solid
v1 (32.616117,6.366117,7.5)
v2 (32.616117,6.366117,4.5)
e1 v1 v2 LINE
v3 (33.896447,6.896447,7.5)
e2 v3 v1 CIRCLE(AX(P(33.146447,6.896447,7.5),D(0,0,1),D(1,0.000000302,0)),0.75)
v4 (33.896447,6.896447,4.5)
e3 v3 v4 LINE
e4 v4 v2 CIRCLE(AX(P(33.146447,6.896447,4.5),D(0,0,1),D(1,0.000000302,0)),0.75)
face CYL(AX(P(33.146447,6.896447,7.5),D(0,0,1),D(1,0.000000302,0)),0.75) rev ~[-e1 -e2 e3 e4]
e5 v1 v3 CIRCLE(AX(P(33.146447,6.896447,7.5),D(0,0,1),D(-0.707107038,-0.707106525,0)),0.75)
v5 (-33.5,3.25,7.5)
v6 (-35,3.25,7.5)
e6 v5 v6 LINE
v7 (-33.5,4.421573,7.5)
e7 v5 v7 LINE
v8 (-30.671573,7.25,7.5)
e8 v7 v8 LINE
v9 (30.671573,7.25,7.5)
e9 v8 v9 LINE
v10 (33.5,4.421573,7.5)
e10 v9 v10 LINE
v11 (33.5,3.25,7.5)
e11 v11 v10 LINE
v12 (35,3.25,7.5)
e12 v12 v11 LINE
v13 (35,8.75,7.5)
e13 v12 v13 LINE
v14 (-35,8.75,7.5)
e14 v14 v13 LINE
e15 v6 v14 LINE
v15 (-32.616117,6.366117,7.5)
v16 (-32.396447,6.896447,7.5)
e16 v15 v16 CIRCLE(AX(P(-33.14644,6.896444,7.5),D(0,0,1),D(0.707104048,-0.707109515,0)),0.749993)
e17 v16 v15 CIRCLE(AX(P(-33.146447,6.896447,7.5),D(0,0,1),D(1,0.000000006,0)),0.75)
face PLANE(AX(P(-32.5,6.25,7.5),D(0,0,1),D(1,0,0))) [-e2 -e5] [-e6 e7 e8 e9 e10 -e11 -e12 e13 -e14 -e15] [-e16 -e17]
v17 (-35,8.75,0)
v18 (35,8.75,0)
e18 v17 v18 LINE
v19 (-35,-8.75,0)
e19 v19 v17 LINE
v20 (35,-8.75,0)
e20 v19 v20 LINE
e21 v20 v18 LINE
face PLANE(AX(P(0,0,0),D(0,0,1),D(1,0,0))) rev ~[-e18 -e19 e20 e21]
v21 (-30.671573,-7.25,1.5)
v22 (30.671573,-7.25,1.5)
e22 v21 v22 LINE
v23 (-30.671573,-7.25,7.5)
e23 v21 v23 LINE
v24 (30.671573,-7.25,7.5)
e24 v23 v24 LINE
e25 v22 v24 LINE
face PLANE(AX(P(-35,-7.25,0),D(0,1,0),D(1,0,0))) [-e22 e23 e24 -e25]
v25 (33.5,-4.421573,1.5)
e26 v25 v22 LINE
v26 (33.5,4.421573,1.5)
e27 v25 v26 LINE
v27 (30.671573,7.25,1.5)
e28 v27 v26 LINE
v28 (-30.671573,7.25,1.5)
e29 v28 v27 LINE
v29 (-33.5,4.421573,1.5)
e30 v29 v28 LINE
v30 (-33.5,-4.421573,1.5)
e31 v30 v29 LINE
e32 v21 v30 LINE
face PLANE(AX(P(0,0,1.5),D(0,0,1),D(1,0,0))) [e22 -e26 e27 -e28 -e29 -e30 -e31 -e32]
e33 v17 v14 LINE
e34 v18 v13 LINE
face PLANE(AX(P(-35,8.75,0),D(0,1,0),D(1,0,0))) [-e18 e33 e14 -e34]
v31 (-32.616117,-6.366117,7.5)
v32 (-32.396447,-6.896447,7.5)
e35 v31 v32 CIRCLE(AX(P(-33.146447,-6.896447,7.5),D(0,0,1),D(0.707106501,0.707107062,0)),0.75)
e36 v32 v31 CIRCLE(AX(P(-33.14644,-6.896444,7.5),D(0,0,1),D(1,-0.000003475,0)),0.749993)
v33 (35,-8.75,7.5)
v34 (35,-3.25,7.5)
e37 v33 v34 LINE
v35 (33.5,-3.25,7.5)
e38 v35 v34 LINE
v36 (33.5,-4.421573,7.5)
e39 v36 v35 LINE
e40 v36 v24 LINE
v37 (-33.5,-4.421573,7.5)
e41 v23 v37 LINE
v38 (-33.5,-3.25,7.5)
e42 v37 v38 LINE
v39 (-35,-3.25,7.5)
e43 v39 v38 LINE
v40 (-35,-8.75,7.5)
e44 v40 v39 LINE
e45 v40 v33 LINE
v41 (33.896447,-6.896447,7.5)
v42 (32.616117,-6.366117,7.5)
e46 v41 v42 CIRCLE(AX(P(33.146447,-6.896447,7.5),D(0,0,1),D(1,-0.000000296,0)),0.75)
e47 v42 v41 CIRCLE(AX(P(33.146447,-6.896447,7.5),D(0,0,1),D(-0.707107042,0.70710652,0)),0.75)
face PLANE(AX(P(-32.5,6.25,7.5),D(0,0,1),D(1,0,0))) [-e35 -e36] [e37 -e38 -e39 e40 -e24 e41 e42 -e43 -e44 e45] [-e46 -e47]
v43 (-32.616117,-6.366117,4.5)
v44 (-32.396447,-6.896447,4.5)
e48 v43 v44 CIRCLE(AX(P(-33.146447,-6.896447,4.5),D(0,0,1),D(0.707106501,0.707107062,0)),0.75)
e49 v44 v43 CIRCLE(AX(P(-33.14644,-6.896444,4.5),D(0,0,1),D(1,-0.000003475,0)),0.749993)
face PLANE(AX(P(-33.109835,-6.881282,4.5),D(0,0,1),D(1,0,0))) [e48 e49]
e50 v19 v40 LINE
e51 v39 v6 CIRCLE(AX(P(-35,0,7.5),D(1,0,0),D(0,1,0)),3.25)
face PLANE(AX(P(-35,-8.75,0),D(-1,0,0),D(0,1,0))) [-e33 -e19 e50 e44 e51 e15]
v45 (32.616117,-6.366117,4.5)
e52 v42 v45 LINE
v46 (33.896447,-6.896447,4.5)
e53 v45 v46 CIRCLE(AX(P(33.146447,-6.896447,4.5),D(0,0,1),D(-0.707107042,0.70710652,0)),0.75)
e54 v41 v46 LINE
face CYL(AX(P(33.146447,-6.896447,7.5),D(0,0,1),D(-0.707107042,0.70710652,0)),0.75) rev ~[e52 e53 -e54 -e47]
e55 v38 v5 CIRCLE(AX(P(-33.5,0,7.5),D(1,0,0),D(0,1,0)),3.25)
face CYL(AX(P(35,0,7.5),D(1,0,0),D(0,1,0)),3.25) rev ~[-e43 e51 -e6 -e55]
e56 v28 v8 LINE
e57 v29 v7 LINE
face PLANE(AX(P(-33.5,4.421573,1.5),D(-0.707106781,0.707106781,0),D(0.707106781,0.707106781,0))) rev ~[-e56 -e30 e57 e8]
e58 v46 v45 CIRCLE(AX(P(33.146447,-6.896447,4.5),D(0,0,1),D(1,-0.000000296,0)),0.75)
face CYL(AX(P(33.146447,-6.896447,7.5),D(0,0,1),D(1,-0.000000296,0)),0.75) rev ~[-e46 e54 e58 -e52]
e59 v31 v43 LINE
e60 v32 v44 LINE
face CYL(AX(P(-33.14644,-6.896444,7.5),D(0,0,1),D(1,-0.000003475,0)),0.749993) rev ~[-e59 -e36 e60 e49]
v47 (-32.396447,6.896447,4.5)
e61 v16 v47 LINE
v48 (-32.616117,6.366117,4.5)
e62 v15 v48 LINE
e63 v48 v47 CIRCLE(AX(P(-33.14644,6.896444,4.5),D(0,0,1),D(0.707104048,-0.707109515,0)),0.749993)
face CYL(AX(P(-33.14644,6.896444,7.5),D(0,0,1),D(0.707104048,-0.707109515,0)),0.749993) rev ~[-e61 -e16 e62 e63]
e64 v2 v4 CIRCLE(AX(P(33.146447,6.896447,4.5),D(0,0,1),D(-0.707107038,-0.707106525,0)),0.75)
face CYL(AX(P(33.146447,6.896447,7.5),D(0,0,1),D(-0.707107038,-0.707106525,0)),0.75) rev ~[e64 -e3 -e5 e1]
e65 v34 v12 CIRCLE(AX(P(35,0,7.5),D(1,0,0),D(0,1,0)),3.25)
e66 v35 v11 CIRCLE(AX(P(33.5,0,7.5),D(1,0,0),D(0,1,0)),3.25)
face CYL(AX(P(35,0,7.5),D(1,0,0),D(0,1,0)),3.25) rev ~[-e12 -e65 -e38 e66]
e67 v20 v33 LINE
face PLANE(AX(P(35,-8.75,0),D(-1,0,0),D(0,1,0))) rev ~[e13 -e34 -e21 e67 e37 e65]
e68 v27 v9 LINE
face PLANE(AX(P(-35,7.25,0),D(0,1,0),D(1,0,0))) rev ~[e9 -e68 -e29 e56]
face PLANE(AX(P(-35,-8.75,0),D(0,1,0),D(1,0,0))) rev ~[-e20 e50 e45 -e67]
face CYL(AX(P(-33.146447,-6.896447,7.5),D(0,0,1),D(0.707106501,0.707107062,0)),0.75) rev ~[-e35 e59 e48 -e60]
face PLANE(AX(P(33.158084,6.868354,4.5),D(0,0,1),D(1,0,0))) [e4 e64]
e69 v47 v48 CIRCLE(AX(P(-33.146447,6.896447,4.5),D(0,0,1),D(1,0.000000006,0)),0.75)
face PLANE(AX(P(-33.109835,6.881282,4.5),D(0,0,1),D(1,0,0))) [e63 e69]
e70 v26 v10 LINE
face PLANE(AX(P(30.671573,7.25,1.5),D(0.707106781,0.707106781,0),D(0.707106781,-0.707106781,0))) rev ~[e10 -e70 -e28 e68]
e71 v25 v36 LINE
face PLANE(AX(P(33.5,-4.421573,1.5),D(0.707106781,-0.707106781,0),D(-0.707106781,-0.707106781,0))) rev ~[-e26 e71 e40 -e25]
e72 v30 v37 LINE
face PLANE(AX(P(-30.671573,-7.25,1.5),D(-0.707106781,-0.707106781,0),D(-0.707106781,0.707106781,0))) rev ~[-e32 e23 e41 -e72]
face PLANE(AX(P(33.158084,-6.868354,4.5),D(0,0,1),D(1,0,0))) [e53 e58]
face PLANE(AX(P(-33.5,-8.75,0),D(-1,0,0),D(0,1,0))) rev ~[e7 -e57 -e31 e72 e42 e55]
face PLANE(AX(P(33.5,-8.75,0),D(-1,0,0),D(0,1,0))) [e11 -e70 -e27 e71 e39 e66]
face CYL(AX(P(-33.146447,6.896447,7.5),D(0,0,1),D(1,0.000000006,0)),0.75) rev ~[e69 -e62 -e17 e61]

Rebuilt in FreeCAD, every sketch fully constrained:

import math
import FreeCAD as App
import Part
import Sketcher

V = App.Vector
Q = App.Units.Quantity


def faces_at(feature, points):
    """Names of the faces that lie closest to the given points."""
    faces = feature.Shape.Faces
    near = lambda p: min(range(len(faces)), key=lambda i: faces[i].distToShape(Part.Vertex(*p))[0])
    return sorted({f"Face{near(p) + 1}" for p in points})


def add_polygon(sketch, points):
    """Adds a closed chain of lines whose ends are joined by coincident constraints."""
    first, n = sketch.GeometryCount, len(points)
    for a, b in zip(points, points[1:] + points[:1]):
        sketch.addGeometry(Part.LineSegment(App.Vector(*a, 0), App.Vector(*b, 0)), False)
    for i in range(n):
        sketch.addConstraint(Sketcher.Constraint("Coincident", first + i, 2, first + (i + 1) % n, 1))

doc = App.newDocument("Part")
body = doc.addObject("PartDesign::Body", "Body")

# Sketch on XY plane
sketch1 = doc.addObject("Sketcher::SketchObject", "Sketch")
body.addObject(sketch1)
sketch1.AttachmentSupport = (doc.XY_Plane, [""])
sketch1.MapMode = "FlatFace"
add_polygon(sketch1, [(-35, 9), (-35, -9), (35, -9), (35, 9)])  # lines 0-3
sketch1.addConstraint(Sketcher.Constraint("Vertical", 0))
sketch1.addConstraint(Sketcher.Constraint("Horizontal", 1))
sketch1.addConstraint(Sketcher.Constraint("Vertical", 2))
sketch1.addConstraint(Sketcher.Constraint("Horizontal", 3))
sketch1.addConstraint(Sketcher.Constraint("Symmetric", 0, 2, 2, 2, -1, 1))
sketch1.addConstraint(Sketcher.Constraint("DistanceX", 1, 1, 1, 2, Q("70 mm")))
sketch1.addConstraint(Sketcher.Constraint("DistanceY", 0, 2, 0, 1, Q("17.5 mm")))
pad1 = doc.addObject("PartDesign::Pad", "Pad")
body.addObject(pad1)
pad1.Profile = sketch1
pad1.Length = 7.5
doc.recompute()

thickness = doc.addObject("PartDesign::Thickness", "Thickness")
body.addObject(thickness)
thickness.Base = (pad1, faces_at(pad1, [(0, 0, 7.5)]))
thickness.Value = 1.5
thickness.Reversed = True
thickness.Join = "Arc"

# Sketch on XY plane
sketch2 = doc.addObject("Sketcher::SketchObject", "Sketch001")
body.addObject(sketch2)
sketch2.AttachmentSupport = (doc.XY_Plane, [""])
sketch2.MapMode = "FlatFace"
sketch2.AttachmentOffset = App.Placement(V(0, 0, 1.5), App.Rotation())
add_polygon(sketch2, [(-33.5, 7.2), (-33.5, 4.4), (-30.7, 7.2)])  # lines 0-2
add_polygon(sketch2, [(30.7, 7.2), (33.5, 4.4), (33.5, 7.2)])  # lines 3-5
add_polygon(sketch2, [(33.5, -7.2), (33.5, -4.4), (30.7, -7.2)])  # lines 6-8
add_polygon(sketch2, [(-33.5, -4.4), (-33.5, -7.2), (-30.7, -7.2)])  # lines 9-11
sketch2.addConstraint(Sketcher.Constraint("Vertical", 0))
sketch2.addConstraint(Sketcher.Constraint("Horizontal", 2))
sketch2.addConstraint(Sketcher.Constraint("Vertical", 4))
sketch2.addConstraint(Sketcher.Constraint("Horizontal", 5))
sketch2.addConstraint(Sketcher.Constraint("Vertical", 6))
sketch2.addConstraint(Sketcher.Constraint("Horizontal", 8))
sketch2.addConstraint(Sketcher.Constraint("Vertical", 9))
sketch2.addConstraint(Sketcher.Constraint("Horizontal", 10))
sketch2.addConstraint(Sketcher.Constraint("Symmetric", 0, 2, 6, 2, -1, 1))
sketch2.addConstraint(Sketcher.Constraint("Symmetric", 1, 2, 7, 2, -1, 1))
sketch2.addConstraint(Sketcher.Constraint("Symmetric", 4, 2, 9, 2, -1, 1))
sketch2.addConstraint(Sketcher.Constraint("Symmetric", 0, 2, 3, 2, -2))
sketch2.addConstraint(Sketcher.Constraint("Symmetric", 1, 2, 5, 2, -2))
sketch2.addConstraint(Sketcher.Constraint("Perpendicular", 1, 3))
sketch2.addConstraint(Sketcher.Constraint("Perpendicular", 7, 11))
sketch2.addConstraint(Sketcher.Constraint("Horizontal", 6, 2, 11, 2))
sketch2.addConstraint(Sketcher.Constraint("Distance", 1, Q("4 mm")))
sketch2.addConstraint(Sketcher.Constraint("DistanceX", 0, 2, 3, 2, Q("67 mm")))
sketch2.addConstraint(Sketcher.Constraint("DistanceY", 7, 2, 5, 2, Q("14.5 mm")))
pad2 = doc.addObject("PartDesign::Pad", "Pad001")
body.addObject(pad2)
pad2.Profile = sketch2
pad2.Length = 6

# Sketch on XY plane
sketch3 = doc.addObject("Sketcher::SketchObject", "Sketch002")
body.addObject(sketch3)
sketch3.AttachmentSupport = (doc.XY_Plane, [""])
sketch3.MapMode = "FlatFace"
sketch3.AttachmentOffset = App.Placement(V(0, 0, 7.5), App.Rotation())
sketch3.addGeometry(Part.ArcOfCircle(Part.Circle(V(-33.1, 6.9, 0), V(0, 0, 1), 0.7), math.radians(-45), math.radians(0)), False)
sketch3.addGeometry(Part.ArcOfCircle(Part.Circle(V(-33.1, 6.9, 0), V(0, 0, 1), 0.7), math.radians(0), math.radians(315)), False)
sketch3.addGeometry(Part.ArcOfCircle(Part.Circle(V(-33.1, -6.9, 0), V(0, 0, 1), 0.7), math.radians(45), math.radians(360)), False)
sketch3.addGeometry(Part.ArcOfCircle(Part.Circle(V(-33.1, -6.9, 0), V(0, 0, 1), 0.7), math.radians(0), math.radians(45)), False)
sketch3.addGeometry(Part.ArcOfCircle(Part.Circle(V(33.1, 6.9, 0), V(0, 0, 1), 0.7), math.radians(-135), math.radians(0)), False)
sketch3.addGeometry(Part.ArcOfCircle(Part.Circle(V(33.1, 6.9, 0), V(0, 0, 1), 0.7), math.radians(0), math.radians(225)), False)
sketch3.addGeometry(Part.ArcOfCircle(Part.Circle(V(33.1, -6.9, 0), V(0, 0, 1), 0.7), math.radians(135), math.radians(360)), False)
sketch3.addGeometry(Part.ArcOfCircle(Part.Circle(V(33.1, -6.9, 0), V(0, 0, 1), 0.7), math.radians(0), math.radians(135)), False)
sketch3.addConstraint(Sketcher.Constraint("Coincident", 0, 1, 1, 2))
sketch3.addConstraint(Sketcher.Constraint("Coincident", 1, 1, 0, 2))
sketch3.addConstraint(Sketcher.Constraint("Coincident", 2, 1, 3, 2))
sketch3.addConstraint(Sketcher.Constraint("Coincident", 3, 1, 2, 2))
sketch3.addConstraint(Sketcher.Constraint("Tangent", 4, 1, 5, 2))
sketch3.addConstraint(Sketcher.Constraint("Coincident", 5, 1, 4, 2))
sketch3.addConstraint(Sketcher.Constraint("Tangent", 6, 1, 7, 2))
sketch3.addConstraint(Sketcher.Constraint("Coincident", 7, 1, 6, 2))
sketch3.addConstraint(Sketcher.Constraint("Equal", 1, 2))
sketch3.addConstraint(Sketcher.Constraint("Equal", 0, 3))
sketch3.addConstraint(Sketcher.Constraint("Equal", 2, 4))
sketch3.addConstraint(Sketcher.Constraint("Equal", 5, 6))
sketch3.addConstraint(Sketcher.Constraint("Symmetric", 2, 3, 4, 3, -1, 1))
sketch3.addConstraint(Sketcher.Constraint("Symmetric", 0, 3, 6, 3, -1, 1))
sketch3.addConstraint(Sketcher.Constraint("Symmetric", 0, 1, 6, 1, -1, 1))
sketch3.addConstraint(Sketcher.Constraint("Symmetric", 0, 3, 4, 3, -2))
sketch3.addConstraint(Sketcher.Constraint("Horizontal", 5, 3, 1, 1))
sketch3.addConstraint(Sketcher.Constraint("Horizontal", 7, 3, 3, 1))
sketch3.addConstraint(Sketcher.Constraint("Horizontal", 0, 1, 4, 1))
sketch3.addConstraint(Sketcher.Constraint("Horizontal", 1, 1, 5, 1))
sketch3.addConstraint(Sketcher.Constraint("Horizontal", 2, 1, 6, 1))
sketch3.addConstraint(Sketcher.Constraint("Horizontal", 3, 1, 7, 1))
sketch3.addConstraint(Sketcher.Constraint("Radius", 1, Q("0.75 mm")))
sketch3.addConstraint(Sketcher.Constraint("DistanceX", 0, 3, -1, 1, Q("33.14644 mm")))
sketch3.addConstraint(Sketcher.Constraint("DistanceY", 2, 3, 0, 3, Q("13.792891 mm")))
sketch3.addConstraint(Sketcher.Constraint("DistanceX", 1, 3, 0, 1, Q("0.53033 mm")))
pocket1 = doc.addObject("PartDesign::Pocket", "Pocket")
body.addObject(pocket1)
pocket1.Profile = sketch3
pocket1.Length = 3

# Sketch on YZ plane
sketch4 = doc.addObject("Sketcher::SketchObject", "Sketch003")
body.addObject(sketch4)
sketch4.AttachmentSupport = (doc.YZ_Plane, [""])
sketch4.MapMode = "FlatFace"
sketch4.AttachmentOffset = App.Placement(V(0, 0, 35), App.Rotation())
sketch4.addGeometry(Part.Circle(V(0, 7.5, 0), V(0, 0, 1), 3.2), False)
sketch4.addConstraint(Sketcher.Constraint("PointOnObject", 0, 3, -2))
sketch4.addConstraint(Sketcher.Constraint("Diameter", 0, Q("6.5 mm")))
sketch4.addConstraint(Sketcher.Constraint("DistanceY", -1, 1, 0, 3, Q("7.5 mm")))
pocket2 = doc.addObject("PartDesign::Pocket", "Pocket001")
body.addObject(pocket2)
pocket2.Profile = sketch4
pocket2.Type = "ThroughAll"

doc.recompute()
